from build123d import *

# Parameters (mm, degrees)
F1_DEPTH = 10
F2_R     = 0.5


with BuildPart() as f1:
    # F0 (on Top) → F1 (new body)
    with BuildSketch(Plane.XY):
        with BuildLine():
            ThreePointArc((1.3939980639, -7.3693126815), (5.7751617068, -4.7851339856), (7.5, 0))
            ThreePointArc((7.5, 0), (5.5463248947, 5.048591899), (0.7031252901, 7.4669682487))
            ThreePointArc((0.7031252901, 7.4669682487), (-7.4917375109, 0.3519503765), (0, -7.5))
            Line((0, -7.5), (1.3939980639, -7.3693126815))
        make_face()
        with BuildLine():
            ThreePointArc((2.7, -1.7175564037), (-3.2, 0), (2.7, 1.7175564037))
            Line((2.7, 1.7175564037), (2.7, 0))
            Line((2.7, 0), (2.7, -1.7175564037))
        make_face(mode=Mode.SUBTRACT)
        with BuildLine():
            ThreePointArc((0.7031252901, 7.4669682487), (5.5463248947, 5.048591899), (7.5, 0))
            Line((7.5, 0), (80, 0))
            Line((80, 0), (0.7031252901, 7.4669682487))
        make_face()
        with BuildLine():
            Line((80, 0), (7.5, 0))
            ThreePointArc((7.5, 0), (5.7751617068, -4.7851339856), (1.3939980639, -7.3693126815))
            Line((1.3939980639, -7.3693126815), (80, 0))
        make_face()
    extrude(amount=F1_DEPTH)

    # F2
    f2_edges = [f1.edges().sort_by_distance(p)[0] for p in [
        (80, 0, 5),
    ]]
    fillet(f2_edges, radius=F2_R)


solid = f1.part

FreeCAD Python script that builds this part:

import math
import FreeCAD as App
import Part
import Sketcher


def edges_at(feature, points):
    """Names of the edges that pass closest to the given points."""
    edges = feature.Shape.Edges
    near = lambda p: min(range(len(edges)), key=lambda i: edges[i].distToShape(Part.Vertex(*p))[0])
    return sorted({f"Edge{near(p) + 1}" for p in points})

doc = App.newDocument("Part")
params = doc.addObject("Spreadsheet::Sheet", "Params")
for row, (alias, value) in enumerate([
    ("sketch1_radius", "7.5 mm"),
    ("sketch1_radius2", "3.2 mm"),
    ("pad1_length", "10 mm"),
    ("fillet_radius", "0.5 mm"),
], start=1):
    params.set(f"A{row}", alias)
    params.set(f"B{row}", "=" + value)
    params.setAlias(f"B{row}", alias)

body = doc.addObject("PartDesign::Body", "Body")

# Sketch on XY plane
sketch1 = body.newObject("Sketcher::SketchObject", "Sketch")
sketch1.AttachmentSupport = (doc.getObject("XY_Plane"), [""])
sketch1.MapMode = "FlatFace"
sketch1.addGeometry([
    Part.LineSegment(App.Vector(80, 0, 0), App.Vector(0.7, 7.5, 0)),  # 0
    Part.ArcOfCircle(Part.Circle(App.Vector(0, 0, 0), App.Vector(0, 0, 1), 7.5), math.radians(85), math.radians(270)),  # 1
    Part.LineSegment(App.Vector(0, -7.5, 0), App.Vector(1.4, -7.4, 0)),  # 2
    Part.LineSegment(App.Vector(1.4, -7.4, 0), App.Vector(80, 0, 0)),  # 3
    Part.LineSegment(App.Vector(2.7, 1.7, 0), App.Vector(2.7, -1.7, 0)),  # 4
    Part.ArcOfCircle(Part.Circle(App.Vector(0, 0, 0), App.Vector(0, 0, 1), 3.2), math.radians(32), math.radians(328)),  # 5
], False)
sketch1.addConstraint([
    Sketcher.Constraint("Tangent", 0, 2, 1, 1),
    Sketcher.Constraint("Coincident", 1, 2, 2, 1),
    Sketcher.Constraint("Coincident", 2, 2, 3, 1),
    Sketcher.Constraint("Coincident", 3, 2, 0, 1),
    Sketcher.Constraint("Coincident", 4, 1, 5, 1),
    Sketcher.Constraint("Coincident", 5, 2, 4, 2),
    Sketcher.Constraint("Vertical", 4),
    Sketcher.Constraint("Coincident", 1, 3, -1, 1),
    Sketcher.Constraint("Coincident", 5, 3, -1, 1),
    Sketcher.Constraint("PointOnObject", 1, 2, -2),
    Sketcher.Constraint("PointOnObject", 3, 2, -1),
    Sketcher.Constraint("Parallel", 2, 3),
    Sketcher.Constraint("Radius", 1, 7.5),
    Sketcher.Constraint("Radius", 5, 3.2),
    Sketcher.Constraint("DistanceX", -1, 1, 3, 2, 80.0),
    Sketcher.Constraint("DistanceX", -1, 1, 4, 1, 2.7),
    Sketcher.Constraint("DistanceX", -1, 1, 2, 2, 1.393998),
])
sketch1.setExpression("Constraints[12]", "Params.sketch1_radius")
sketch1.setExpression("Constraints[13]", "Params.sketch1_radius2")
pad1 = body.newObject("PartDesign::Pad", "Pad")
pad1.Profile = sketch1
pad1.setExpression("Length", "Params.pad1_length")
doc.recompute()

fillet = body.newObject("PartDesign::Fillet", "Fillet")
fillet.Base = (pad1, edges_at(pad1, [(80, 0, 5)]))
fillet.setExpression("Radius", "Params.fillet_radius")

doc.recompute()
